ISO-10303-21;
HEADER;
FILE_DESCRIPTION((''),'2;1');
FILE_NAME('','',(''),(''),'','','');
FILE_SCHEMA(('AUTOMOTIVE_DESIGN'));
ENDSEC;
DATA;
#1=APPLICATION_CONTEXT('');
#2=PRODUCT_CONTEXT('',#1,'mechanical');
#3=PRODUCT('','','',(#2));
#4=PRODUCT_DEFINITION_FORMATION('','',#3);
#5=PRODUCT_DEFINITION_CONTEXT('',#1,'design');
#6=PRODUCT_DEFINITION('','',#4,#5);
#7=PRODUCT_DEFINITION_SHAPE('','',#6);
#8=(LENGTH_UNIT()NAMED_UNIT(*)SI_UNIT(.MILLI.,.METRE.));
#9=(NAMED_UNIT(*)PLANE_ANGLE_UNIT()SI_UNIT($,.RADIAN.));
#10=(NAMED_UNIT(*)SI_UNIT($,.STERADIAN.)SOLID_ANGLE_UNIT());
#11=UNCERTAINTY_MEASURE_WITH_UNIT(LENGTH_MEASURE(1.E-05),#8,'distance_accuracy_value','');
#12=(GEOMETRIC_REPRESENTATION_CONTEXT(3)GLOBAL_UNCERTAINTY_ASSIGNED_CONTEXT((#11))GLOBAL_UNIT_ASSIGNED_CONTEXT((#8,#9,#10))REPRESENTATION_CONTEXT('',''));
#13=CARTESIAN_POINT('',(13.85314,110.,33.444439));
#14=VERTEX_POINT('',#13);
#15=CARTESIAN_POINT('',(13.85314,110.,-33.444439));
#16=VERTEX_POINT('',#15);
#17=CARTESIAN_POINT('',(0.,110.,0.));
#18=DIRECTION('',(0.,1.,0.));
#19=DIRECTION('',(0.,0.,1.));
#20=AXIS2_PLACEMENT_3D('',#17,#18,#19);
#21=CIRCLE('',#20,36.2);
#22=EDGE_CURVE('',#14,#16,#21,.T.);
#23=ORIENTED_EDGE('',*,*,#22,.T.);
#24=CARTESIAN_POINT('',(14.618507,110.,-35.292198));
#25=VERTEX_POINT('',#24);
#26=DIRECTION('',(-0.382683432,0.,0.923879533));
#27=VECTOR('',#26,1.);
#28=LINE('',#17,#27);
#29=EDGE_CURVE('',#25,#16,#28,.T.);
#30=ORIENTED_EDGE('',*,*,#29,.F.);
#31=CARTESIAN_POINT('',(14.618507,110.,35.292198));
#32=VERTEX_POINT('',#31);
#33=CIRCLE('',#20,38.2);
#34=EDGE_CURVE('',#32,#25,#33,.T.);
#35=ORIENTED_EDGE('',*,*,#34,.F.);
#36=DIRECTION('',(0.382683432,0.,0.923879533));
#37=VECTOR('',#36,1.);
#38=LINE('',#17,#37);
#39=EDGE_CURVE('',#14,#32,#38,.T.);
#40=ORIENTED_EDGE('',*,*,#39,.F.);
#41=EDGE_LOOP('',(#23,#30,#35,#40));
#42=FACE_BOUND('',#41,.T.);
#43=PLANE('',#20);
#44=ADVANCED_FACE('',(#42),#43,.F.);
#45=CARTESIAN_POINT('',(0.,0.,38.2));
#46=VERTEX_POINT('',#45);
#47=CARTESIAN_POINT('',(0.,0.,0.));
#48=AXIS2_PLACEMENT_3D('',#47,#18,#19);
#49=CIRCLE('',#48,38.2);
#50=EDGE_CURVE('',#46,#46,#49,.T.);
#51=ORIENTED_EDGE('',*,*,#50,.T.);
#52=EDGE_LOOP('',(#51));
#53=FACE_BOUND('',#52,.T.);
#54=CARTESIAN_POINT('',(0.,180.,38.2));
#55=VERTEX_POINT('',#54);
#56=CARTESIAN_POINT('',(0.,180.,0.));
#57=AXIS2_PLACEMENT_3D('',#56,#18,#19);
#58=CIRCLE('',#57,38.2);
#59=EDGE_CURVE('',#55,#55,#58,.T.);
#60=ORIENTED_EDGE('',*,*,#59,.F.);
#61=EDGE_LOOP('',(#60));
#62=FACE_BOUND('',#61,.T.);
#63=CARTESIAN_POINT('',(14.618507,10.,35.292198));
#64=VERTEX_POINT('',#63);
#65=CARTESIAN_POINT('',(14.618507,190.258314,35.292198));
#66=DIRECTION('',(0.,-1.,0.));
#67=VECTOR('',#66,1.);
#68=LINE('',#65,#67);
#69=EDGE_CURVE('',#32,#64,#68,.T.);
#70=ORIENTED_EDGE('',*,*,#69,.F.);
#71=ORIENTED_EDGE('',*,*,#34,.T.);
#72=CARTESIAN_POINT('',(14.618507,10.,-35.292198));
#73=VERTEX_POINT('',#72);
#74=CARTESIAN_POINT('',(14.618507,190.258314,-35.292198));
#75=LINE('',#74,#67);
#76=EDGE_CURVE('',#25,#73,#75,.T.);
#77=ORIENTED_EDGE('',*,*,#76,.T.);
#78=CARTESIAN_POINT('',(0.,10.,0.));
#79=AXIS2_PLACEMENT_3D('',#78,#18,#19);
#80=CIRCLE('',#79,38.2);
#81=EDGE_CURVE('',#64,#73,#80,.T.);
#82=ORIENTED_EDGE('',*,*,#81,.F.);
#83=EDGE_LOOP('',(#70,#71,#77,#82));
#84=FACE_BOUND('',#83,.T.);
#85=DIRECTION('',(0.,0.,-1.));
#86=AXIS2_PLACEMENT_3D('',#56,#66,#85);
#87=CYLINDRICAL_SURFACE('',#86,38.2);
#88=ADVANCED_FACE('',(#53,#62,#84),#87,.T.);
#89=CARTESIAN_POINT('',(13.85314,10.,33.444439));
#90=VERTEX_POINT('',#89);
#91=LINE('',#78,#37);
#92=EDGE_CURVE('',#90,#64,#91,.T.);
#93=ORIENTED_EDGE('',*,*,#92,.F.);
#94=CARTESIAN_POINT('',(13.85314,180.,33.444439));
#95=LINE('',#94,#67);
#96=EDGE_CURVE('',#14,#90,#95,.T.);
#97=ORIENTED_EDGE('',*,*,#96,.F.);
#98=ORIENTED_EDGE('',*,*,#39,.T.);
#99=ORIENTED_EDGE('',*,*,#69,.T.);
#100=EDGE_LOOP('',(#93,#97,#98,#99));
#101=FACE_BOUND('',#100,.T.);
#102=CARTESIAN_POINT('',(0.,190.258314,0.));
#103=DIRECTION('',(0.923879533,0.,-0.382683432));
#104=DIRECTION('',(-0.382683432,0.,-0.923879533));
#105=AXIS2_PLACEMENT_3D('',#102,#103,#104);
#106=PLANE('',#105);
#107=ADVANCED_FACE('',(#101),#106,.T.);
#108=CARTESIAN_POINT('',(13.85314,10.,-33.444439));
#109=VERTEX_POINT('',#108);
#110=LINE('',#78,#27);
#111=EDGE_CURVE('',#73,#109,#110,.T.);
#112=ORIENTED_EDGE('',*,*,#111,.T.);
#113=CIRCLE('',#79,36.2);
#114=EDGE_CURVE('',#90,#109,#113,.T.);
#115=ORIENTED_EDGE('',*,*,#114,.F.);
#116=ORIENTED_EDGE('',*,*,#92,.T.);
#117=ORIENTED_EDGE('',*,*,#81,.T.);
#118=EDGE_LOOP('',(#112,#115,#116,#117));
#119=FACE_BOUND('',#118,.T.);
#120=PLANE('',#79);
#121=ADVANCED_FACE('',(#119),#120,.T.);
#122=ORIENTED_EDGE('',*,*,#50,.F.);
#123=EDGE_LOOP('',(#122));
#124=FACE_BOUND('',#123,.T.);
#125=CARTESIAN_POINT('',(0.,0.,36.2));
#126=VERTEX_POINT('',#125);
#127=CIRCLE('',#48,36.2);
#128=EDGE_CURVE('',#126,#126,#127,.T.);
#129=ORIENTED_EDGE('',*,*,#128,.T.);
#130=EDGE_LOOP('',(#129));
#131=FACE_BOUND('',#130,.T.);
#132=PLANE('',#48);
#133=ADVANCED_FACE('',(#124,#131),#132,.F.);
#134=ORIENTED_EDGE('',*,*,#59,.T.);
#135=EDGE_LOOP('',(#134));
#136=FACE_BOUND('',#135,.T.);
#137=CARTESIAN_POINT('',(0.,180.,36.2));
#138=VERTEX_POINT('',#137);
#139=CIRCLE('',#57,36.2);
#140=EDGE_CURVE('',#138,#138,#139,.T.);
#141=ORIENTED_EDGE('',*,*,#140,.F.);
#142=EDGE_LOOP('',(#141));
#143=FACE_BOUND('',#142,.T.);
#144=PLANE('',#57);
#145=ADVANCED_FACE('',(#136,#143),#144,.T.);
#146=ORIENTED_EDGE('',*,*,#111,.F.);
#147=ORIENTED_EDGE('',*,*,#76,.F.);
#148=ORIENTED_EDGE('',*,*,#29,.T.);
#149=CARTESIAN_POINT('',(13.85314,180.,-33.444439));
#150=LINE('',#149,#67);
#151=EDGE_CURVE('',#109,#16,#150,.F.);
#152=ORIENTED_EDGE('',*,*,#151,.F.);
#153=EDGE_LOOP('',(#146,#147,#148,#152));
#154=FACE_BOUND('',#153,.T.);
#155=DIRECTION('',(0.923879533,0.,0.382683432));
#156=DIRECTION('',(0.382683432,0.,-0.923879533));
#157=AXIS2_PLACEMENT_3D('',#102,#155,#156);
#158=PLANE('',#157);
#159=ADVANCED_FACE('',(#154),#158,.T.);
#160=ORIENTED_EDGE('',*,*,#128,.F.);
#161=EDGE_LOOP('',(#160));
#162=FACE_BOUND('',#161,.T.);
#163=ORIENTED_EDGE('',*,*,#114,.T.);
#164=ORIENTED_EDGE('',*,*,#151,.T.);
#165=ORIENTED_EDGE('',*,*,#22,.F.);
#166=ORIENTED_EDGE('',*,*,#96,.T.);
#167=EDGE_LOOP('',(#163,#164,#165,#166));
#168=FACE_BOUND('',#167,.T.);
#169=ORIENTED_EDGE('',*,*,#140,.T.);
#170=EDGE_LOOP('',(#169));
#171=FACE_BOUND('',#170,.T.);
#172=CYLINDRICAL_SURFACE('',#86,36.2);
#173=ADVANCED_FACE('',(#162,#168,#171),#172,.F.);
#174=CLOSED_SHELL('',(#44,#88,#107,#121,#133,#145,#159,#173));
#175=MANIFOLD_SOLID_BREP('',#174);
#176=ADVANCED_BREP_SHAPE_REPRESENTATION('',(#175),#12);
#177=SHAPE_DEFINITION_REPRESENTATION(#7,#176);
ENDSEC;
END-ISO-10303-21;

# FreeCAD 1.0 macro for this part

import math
import FreeCAD as App
import Part
import Sketcher
Q = App.Units.Quantity


def faces_at(feature, points):
    """Names of the faces that lie closest to the given points."""
    faces = feature.Shape.Faces
    near = lambda p: min(range(len(faces)), key=lambda i: faces[i].distToShape(Part.Vertex(*p))[0])
    return sorted({f"Face{near(p) + 1}" for p in points})

doc = App.newDocument("Part")
body = doc.addObject("PartDesign::Body", "Body")

sketch1 = body.newObject("Sketcher::SketchObject", "Sketch")
sketch1.AttachmentSupport = (doc.getObject("XZ_Plane"), [""])
sketch1.MapMode = "FlatFace"
sketch1.addGeometry(Part.Circle(App.Vector(0, 0, 0), App.Vector(0, 0, 1), 38), False)
sketch1.addConstraint(Sketcher.Constraint("Coincident", 0, 3, -1, 1))
sketch1.addConstraint(Sketcher.Constraint("Diameter", 0, Q("76.4 mm")))
pad1 = body.newObject("PartDesign::Pad", "Pad")
pad1.Profile = sketch1
pad1.Length = 180
pad1.Reversed = True
doc.recompute()

thickness = body.newObject("PartDesign::Thickness", "Thickness")
thickness.Base = (pad1, faces_at(pad1, [(0, 180, 0), (0, 0, 0)]))
thickness.Value = 2
thickness.Reversed = True
thickness.Join = "Intersection"

sketch2 = body.newObject("Sketcher::SketchObject", "Sketch001")
sketch2.AttachmentSupport = (doc.getObject("XZ_Plane"), [""])
sketch2.MapMode = "FlatFace"
sketch2.AttachmentOffset = App.Placement(App.Vector(0, 0, -10), App.Rotation())
sketch2.addGeometry(Part.LineSegment(App.Vector(15, -35, 0), App.Vector(0, 0, 0)), False)
sketch2.addGeometry(Part.LineSegment(App.Vector(0, 0, 0), App.Vector(15, 35, 0)), False)
sketch2.addGeometry(Part.ArcOfCircle(Part.Circle(App.Vector(0, 0, 0), App.Vector(0, 0, 1), 38), math.radians(-68), math.radians(68)), False)
sketch2.addConstraint(Sketcher.Constraint("Coincident", 0, 2, 1, 1))
sketch2.addConstraint(Sketcher.Constraint("Coincident", 1, 2, 2, 2))
sketch2.addConstraint(Sketcher.Constraint("Coincident", 2, 1, 0, 1))
sketch2.addConstraint(Sketcher.Constraint("Coincident", 2, 3, -1, 1))
sketch2.addConstraint(Sketcher.Constraint("Coincident", 0, 2, -1, 1))
sketch2.addConstraint(Sketcher.Constraint("Vertical", 1, 2, 2, 1))
sketch2.addConstraint(Sketcher.Constraint("Radius", 2, Q("38.2 mm")))
sketch2.addConstraint(Sketcher.Constraint("Angle", 0, Q("112.5 deg")))
pocket1 = body.newObject("PartDesign::Pocket", "Pocket")
pocket1.Profile = sketch2
pocket1.Length = 100

doc.recompute()
